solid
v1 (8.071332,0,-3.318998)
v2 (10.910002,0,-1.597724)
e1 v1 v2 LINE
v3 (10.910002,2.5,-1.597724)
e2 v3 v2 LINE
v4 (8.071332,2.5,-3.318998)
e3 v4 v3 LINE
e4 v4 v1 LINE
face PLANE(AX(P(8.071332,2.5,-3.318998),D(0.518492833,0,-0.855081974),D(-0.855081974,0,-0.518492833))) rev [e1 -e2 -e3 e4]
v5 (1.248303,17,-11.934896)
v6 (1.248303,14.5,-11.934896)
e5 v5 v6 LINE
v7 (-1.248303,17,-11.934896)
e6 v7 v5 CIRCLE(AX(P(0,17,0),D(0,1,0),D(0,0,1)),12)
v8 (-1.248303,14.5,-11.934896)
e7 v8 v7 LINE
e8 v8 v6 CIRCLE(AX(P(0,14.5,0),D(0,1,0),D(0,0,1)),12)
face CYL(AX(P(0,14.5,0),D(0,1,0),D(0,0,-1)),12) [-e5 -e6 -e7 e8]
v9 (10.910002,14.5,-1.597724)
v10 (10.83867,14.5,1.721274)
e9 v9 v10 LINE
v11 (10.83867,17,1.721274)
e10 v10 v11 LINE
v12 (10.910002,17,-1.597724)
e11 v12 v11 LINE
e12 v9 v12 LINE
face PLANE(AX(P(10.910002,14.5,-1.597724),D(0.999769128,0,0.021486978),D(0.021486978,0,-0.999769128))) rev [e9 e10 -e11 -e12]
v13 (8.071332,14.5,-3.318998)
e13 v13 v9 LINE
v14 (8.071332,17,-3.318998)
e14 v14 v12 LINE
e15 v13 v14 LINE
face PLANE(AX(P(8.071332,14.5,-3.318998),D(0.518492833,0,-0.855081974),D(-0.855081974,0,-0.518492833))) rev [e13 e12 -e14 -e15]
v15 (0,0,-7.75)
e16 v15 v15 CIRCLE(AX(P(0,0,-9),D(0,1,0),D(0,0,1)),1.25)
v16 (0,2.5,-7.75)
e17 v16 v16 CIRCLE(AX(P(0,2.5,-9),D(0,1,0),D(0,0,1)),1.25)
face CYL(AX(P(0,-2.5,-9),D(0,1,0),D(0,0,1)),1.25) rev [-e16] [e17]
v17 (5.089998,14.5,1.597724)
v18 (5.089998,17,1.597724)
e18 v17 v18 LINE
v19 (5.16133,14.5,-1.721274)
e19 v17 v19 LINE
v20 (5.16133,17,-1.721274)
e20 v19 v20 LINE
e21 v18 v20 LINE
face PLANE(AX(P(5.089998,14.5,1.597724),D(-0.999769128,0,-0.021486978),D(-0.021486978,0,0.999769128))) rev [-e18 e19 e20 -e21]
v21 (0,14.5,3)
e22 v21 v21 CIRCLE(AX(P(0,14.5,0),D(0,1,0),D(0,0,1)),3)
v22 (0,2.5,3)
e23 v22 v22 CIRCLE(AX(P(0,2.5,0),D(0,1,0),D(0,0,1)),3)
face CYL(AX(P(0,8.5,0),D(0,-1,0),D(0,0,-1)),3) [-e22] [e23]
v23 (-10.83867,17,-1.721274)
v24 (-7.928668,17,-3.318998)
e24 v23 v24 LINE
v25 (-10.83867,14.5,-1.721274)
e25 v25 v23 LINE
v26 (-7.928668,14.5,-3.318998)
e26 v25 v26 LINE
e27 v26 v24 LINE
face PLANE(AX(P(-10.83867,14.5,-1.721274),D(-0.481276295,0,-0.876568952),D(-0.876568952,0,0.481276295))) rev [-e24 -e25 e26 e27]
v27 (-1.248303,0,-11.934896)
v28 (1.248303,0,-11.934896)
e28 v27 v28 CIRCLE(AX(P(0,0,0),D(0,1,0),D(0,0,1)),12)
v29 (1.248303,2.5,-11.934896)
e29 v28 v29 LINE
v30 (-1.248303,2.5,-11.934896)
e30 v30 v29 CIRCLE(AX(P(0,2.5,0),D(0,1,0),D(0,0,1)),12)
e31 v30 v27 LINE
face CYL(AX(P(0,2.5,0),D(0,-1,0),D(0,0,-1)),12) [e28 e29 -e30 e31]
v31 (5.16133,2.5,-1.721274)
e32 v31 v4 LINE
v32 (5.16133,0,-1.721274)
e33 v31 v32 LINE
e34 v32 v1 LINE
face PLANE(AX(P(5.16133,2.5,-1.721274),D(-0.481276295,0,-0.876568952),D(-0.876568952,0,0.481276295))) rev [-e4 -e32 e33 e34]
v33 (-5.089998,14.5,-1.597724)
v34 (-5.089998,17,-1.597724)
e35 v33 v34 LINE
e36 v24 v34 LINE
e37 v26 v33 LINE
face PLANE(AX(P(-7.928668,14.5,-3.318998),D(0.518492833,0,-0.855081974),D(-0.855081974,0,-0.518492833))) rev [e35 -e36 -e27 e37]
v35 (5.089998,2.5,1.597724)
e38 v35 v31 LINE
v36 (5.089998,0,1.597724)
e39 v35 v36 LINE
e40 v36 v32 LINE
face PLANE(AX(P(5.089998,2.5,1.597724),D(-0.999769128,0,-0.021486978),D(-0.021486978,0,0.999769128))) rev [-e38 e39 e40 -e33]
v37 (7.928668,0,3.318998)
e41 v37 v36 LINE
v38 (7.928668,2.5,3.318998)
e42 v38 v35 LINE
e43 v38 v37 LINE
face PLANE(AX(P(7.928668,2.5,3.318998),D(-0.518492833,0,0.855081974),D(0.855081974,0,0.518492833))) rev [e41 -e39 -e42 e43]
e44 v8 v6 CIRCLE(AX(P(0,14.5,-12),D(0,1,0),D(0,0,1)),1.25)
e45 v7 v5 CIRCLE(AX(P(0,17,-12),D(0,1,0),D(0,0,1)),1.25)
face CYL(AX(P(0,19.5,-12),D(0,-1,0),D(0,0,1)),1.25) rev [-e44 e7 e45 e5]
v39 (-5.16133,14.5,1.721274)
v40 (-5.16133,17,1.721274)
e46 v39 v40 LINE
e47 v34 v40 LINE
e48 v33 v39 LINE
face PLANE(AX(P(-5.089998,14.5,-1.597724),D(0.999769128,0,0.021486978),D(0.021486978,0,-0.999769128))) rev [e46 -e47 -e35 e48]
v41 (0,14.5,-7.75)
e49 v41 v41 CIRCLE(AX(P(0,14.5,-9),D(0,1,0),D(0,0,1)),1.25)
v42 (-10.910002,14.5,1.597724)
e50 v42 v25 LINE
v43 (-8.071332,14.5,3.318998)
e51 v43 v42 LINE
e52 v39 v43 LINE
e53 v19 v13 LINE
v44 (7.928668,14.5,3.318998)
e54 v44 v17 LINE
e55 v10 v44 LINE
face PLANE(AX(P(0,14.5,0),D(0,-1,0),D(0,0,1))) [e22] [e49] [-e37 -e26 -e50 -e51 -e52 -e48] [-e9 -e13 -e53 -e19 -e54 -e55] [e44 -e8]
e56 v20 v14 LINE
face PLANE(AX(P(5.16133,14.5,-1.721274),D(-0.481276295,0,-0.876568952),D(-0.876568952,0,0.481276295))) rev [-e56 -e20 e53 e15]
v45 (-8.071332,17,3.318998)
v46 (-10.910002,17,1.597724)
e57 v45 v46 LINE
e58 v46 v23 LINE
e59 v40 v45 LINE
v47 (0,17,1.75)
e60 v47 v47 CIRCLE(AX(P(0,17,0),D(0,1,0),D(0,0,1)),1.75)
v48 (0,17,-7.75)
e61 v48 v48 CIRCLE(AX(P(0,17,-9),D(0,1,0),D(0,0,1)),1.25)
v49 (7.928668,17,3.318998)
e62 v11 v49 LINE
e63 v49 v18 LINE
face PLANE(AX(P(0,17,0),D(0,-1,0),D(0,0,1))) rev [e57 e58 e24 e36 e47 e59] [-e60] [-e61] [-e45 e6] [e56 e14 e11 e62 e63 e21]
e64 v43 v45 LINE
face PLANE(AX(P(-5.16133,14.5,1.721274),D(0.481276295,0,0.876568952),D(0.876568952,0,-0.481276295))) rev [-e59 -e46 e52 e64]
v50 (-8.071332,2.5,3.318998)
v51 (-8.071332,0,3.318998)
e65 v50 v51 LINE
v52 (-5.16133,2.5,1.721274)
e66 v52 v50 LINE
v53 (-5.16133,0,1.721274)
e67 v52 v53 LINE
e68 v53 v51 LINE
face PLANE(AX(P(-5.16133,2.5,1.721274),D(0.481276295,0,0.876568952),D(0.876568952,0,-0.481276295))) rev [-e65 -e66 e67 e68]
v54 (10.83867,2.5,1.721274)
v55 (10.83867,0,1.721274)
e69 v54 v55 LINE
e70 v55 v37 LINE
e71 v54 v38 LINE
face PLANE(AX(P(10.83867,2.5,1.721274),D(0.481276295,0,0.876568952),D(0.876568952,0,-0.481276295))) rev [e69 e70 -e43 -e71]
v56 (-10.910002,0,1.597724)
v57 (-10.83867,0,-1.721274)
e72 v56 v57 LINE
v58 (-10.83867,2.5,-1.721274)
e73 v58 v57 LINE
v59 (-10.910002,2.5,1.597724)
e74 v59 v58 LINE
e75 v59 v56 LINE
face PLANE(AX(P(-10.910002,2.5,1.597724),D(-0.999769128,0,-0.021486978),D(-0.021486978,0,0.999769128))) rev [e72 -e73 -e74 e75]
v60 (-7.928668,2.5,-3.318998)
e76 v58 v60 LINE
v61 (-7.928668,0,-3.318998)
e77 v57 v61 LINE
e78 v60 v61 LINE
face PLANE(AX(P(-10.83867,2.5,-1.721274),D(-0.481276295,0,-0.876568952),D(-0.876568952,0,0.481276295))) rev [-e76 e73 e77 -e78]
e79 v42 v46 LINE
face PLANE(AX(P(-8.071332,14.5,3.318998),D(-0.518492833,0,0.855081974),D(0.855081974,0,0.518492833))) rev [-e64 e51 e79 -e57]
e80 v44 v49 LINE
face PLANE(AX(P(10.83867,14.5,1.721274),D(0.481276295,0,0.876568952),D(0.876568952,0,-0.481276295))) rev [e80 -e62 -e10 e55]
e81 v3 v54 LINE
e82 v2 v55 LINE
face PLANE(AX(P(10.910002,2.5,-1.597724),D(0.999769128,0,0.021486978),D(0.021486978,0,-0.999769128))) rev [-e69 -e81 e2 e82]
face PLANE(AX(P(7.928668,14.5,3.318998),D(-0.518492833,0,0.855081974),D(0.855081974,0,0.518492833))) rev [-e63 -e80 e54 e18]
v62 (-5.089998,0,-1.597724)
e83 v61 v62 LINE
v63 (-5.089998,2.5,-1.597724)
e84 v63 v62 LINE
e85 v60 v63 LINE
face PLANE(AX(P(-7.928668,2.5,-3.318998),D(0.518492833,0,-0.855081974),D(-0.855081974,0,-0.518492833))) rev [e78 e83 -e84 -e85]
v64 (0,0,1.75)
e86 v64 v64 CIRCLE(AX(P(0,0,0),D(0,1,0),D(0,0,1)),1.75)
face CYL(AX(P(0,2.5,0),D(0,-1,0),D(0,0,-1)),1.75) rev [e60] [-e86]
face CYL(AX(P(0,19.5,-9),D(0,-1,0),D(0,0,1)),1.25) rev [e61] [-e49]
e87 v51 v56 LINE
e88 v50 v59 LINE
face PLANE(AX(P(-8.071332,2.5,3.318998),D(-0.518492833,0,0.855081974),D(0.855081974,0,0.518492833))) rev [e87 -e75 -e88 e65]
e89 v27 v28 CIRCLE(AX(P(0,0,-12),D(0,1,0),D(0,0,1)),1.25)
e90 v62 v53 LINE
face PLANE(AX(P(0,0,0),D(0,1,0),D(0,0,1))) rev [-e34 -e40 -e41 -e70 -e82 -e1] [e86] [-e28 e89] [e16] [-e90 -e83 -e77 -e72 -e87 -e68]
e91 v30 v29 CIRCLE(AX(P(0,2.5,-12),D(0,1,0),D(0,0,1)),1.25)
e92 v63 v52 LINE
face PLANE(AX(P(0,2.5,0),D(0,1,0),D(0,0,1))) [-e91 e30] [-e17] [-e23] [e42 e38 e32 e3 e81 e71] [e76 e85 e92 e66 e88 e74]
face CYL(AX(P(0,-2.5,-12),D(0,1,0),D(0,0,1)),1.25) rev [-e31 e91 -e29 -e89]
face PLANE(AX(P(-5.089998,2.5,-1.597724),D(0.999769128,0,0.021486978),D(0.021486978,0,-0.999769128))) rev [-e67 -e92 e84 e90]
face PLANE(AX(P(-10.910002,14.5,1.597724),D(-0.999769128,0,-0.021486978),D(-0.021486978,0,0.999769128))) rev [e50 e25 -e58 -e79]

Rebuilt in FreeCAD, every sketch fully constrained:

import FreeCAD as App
import Part
import Sketcher


def add_polygon(sketch, points):
    """Adds a closed chain of lines whose ends are joined by coincident constraints."""
    first, n = sketch.GeometryCount, len(points)
    for a, b in zip(points, points[1:] + points[:1]):
        sketch.addGeometry(Part.LineSegment(App.Vector(*a, 0), App.Vector(*b, 0)), False)
    for i in range(n):
        sketch.addConstraint(Sketcher.Constraint("Coincident", first + i, 2, first + (i + 1) % n, 1))

doc = App.newDocument("Part")
body = doc.addObject("PartDesign::Body", "Body")

# Sketch on XZ plane
sketch1 = body.newObject("Sketcher::SketchObject", "Sketch")
sketch1.AttachmentSupport = (doc.getObject("XZ_Plane"), [""])
sketch1.MapMode = "FlatFace"
sketch1.addGeometry([
    Part.Circle(App.Vector(0, 0, 0), App.Vector(0, 0, 1), 12),
    Part.Circle(App.Vector(0, 0, 0), App.Vector(0, 0, 1), 1.75),
], False)
sketch1.addConstraint([
    Sketcher.Constraint("Coincident", 0, 3, -1, 1),
    Sketcher.Constraint("Coincident", 1, 3, -1, 1),
    Sketcher.Constraint("Diameter", 0, 24.0),
    Sketcher.Constraint("Diameter", 1, 3.5),
])
pad1 = body.newObject("PartDesign::Pad", "Pad")
pad1.Profile = sketch1
pad1.Length = 2.5
pad1.Reversed = True

# Sketch on XZ plane
sketch2 = body.newObject("Sketcher::SketchObject", "Sketch001")
sketch2.AttachmentSupport = (doc.getObject("XZ_Plane"), [""])
sketch2.MapMode = "FlatFace"
add_polygon(sketch2, [(-5.16133, 1.721274), (-8.071332, 3.318998), (-10.910002, 1.597724), (-10.83867, -1.721274), (-7.928668, -3.318998), (-5.089998, -1.597724)])  # lines 0-5
add_polygon(sketch2, [(5.16133, -1.721274), (8.071332, -3.318998), (10.910002, -1.597724), (10.83867, 1.721274), (7.928668, 3.318998), (5.089998, 1.597724)])  # lines 6-11
sketch2.addConstraint([
    Sketcher.Constraint("Symmetric", 0, 2, 6, 2, -1, 1),
    Sketcher.Constraint("Symmetric", 1, 2, 7, 2, -1, 1),
    Sketcher.Constraint("Symmetric", 2, 2, 8, 2, -1, 1),
    Sketcher.Constraint("Symmetric", 3, 2, 9, 2, -1, 1),
    Sketcher.Constraint("Symmetric", 4, 2, 10, 2, -1, 1),
    Sketcher.Constraint("Symmetric", 5, 2, 11, 2, -1, 1),
    Sketcher.Constraint("Parallel", 0, 3),
    Sketcher.Constraint("Parallel", 1, 4),
    Sketcher.Constraint("Parallel", 2, 5),
    Sketcher.Constraint("Horizontal", 3, 2, 6, 2),
    Sketcher.Constraint("Horizontal", 4, 2, 7, 2),
    Sketcher.Constraint("Equal", 0, 1),
    Sketcher.Constraint("Equal", 1, 2),
    Sketcher.Constraint("DistanceX", 3, 2, 6, 2, 16.0),
    Sketcher.Constraint("DistanceX", 0, 2, -1, 1, 8.071332),
    Sketcher.Constraint("DistanceX", 2, 2, -1, 1, 10.83867),
    Sketcher.Constraint("DistanceX", 1, 2, 0, 2, 2.83867),
    Sketcher.Constraint("DistanceY", 2, 2, 0, 2, 5.040271),
])
pocket1 = body.newObject("PartDesign::Pocket", "Pocket")
pocket1.Profile = sketch2
pocket1.Length = 2.5

# Sketch on XZ plane
sketch3 = body.newObject("Sketcher::SketchObject", "Sketch002")
sketch3.AttachmentSupport = (doc.getObject("XZ_Plane"), [""])
sketch3.MapMode = "FlatFace"
sketch3.AttachmentOffset = App.Placement(App.Vector(0, 0, -2.5), App.Rotation())
sketch3.addGeometry([
    Part.Circle(App.Vector(0, -9, 0), App.Vector(0, 0, 1), 1.25),
    Part.Circle(App.Vector(0, -12, 0), App.Vector(0, 0, 1), 1.25),
], False)
sketch3.addConstraint([
    Sketcher.Constraint("Equal", 0, 1),
    Sketcher.Constraint("PointOnObject", 0, 3, -2),
    Sketcher.Constraint("PointOnObject", 1, 3, -2),
    Sketcher.Constraint("Diameter", 0, 2.5),
    Sketcher.Constraint("DistanceY", 0, 3, -1, 1, 9.0),
    Sketcher.Constraint("DistanceY", 1, 3, -1, 1, 12.0),
])
pocket2 = body.newObject("PartDesign::Pocket", "Pocket001")
pocket2.Profile = sketch3
pocket2.Length = 5
pocket2.Reversed = True

# Sketch on XZ plane
sketch4 = body.newObject("Sketcher::SketchObject", "Sketch003")
sketch4.AttachmentSupport = (doc.getObject("XZ_Plane"), [""])
sketch4.MapMode = "FlatFace"
sketch4.AttachmentOffset = App.Placement(App.Vector(0, 0, -2.5), App.Rotation())
sketch4.addGeometry([
    Part.Circle(App.Vector(0, 0, 0), App.Vector(0, 0, 1), 3),
    Part.Circle(App.Vector(0, 0, 0), App.Vector(0, 0, 1), 1.75),
], False)
sketch4.addConstraint([
    Sketcher.Constraint("Coincident", 0, 3, -1, 1),
    Sketcher.Constraint("Coincident", 1, 3, -1, 1),
    Sketcher.Constraint("Diameter", 0, 6.0),
    Sketcher.Constraint("Diameter", 1, 3.5),
])
pad2 = body.newObject("PartDesign::Pad", "Pad001")
pad2.Profile = sketch4
pad2.Length = 6
pad2.Reversed = True
body2 = doc.addObject("PartDesign::Body", "Body001")
doc.recompute()

body2.BaseFeature = body
doc.recompute()

mirroring = doc.addObject("Part::Mirroring", "Mirroring")
mirroring.Source = body
mirroring.Base = App.Vector(0, 8.5, 0)
mirroring.Normal = App.Vector(0, 1, 0)
body3 = doc.addObject("PartDesign::Body", "Body002")
body3.BaseFeature = mirroring
boolean = body2.newObject("PartDesign::Boolean", "Boolean")
boolean.Type = "Fuse"
boolean.addObjects([body3])
doc.recompute()
mirroring.Visibility = False

doc.recompute()
